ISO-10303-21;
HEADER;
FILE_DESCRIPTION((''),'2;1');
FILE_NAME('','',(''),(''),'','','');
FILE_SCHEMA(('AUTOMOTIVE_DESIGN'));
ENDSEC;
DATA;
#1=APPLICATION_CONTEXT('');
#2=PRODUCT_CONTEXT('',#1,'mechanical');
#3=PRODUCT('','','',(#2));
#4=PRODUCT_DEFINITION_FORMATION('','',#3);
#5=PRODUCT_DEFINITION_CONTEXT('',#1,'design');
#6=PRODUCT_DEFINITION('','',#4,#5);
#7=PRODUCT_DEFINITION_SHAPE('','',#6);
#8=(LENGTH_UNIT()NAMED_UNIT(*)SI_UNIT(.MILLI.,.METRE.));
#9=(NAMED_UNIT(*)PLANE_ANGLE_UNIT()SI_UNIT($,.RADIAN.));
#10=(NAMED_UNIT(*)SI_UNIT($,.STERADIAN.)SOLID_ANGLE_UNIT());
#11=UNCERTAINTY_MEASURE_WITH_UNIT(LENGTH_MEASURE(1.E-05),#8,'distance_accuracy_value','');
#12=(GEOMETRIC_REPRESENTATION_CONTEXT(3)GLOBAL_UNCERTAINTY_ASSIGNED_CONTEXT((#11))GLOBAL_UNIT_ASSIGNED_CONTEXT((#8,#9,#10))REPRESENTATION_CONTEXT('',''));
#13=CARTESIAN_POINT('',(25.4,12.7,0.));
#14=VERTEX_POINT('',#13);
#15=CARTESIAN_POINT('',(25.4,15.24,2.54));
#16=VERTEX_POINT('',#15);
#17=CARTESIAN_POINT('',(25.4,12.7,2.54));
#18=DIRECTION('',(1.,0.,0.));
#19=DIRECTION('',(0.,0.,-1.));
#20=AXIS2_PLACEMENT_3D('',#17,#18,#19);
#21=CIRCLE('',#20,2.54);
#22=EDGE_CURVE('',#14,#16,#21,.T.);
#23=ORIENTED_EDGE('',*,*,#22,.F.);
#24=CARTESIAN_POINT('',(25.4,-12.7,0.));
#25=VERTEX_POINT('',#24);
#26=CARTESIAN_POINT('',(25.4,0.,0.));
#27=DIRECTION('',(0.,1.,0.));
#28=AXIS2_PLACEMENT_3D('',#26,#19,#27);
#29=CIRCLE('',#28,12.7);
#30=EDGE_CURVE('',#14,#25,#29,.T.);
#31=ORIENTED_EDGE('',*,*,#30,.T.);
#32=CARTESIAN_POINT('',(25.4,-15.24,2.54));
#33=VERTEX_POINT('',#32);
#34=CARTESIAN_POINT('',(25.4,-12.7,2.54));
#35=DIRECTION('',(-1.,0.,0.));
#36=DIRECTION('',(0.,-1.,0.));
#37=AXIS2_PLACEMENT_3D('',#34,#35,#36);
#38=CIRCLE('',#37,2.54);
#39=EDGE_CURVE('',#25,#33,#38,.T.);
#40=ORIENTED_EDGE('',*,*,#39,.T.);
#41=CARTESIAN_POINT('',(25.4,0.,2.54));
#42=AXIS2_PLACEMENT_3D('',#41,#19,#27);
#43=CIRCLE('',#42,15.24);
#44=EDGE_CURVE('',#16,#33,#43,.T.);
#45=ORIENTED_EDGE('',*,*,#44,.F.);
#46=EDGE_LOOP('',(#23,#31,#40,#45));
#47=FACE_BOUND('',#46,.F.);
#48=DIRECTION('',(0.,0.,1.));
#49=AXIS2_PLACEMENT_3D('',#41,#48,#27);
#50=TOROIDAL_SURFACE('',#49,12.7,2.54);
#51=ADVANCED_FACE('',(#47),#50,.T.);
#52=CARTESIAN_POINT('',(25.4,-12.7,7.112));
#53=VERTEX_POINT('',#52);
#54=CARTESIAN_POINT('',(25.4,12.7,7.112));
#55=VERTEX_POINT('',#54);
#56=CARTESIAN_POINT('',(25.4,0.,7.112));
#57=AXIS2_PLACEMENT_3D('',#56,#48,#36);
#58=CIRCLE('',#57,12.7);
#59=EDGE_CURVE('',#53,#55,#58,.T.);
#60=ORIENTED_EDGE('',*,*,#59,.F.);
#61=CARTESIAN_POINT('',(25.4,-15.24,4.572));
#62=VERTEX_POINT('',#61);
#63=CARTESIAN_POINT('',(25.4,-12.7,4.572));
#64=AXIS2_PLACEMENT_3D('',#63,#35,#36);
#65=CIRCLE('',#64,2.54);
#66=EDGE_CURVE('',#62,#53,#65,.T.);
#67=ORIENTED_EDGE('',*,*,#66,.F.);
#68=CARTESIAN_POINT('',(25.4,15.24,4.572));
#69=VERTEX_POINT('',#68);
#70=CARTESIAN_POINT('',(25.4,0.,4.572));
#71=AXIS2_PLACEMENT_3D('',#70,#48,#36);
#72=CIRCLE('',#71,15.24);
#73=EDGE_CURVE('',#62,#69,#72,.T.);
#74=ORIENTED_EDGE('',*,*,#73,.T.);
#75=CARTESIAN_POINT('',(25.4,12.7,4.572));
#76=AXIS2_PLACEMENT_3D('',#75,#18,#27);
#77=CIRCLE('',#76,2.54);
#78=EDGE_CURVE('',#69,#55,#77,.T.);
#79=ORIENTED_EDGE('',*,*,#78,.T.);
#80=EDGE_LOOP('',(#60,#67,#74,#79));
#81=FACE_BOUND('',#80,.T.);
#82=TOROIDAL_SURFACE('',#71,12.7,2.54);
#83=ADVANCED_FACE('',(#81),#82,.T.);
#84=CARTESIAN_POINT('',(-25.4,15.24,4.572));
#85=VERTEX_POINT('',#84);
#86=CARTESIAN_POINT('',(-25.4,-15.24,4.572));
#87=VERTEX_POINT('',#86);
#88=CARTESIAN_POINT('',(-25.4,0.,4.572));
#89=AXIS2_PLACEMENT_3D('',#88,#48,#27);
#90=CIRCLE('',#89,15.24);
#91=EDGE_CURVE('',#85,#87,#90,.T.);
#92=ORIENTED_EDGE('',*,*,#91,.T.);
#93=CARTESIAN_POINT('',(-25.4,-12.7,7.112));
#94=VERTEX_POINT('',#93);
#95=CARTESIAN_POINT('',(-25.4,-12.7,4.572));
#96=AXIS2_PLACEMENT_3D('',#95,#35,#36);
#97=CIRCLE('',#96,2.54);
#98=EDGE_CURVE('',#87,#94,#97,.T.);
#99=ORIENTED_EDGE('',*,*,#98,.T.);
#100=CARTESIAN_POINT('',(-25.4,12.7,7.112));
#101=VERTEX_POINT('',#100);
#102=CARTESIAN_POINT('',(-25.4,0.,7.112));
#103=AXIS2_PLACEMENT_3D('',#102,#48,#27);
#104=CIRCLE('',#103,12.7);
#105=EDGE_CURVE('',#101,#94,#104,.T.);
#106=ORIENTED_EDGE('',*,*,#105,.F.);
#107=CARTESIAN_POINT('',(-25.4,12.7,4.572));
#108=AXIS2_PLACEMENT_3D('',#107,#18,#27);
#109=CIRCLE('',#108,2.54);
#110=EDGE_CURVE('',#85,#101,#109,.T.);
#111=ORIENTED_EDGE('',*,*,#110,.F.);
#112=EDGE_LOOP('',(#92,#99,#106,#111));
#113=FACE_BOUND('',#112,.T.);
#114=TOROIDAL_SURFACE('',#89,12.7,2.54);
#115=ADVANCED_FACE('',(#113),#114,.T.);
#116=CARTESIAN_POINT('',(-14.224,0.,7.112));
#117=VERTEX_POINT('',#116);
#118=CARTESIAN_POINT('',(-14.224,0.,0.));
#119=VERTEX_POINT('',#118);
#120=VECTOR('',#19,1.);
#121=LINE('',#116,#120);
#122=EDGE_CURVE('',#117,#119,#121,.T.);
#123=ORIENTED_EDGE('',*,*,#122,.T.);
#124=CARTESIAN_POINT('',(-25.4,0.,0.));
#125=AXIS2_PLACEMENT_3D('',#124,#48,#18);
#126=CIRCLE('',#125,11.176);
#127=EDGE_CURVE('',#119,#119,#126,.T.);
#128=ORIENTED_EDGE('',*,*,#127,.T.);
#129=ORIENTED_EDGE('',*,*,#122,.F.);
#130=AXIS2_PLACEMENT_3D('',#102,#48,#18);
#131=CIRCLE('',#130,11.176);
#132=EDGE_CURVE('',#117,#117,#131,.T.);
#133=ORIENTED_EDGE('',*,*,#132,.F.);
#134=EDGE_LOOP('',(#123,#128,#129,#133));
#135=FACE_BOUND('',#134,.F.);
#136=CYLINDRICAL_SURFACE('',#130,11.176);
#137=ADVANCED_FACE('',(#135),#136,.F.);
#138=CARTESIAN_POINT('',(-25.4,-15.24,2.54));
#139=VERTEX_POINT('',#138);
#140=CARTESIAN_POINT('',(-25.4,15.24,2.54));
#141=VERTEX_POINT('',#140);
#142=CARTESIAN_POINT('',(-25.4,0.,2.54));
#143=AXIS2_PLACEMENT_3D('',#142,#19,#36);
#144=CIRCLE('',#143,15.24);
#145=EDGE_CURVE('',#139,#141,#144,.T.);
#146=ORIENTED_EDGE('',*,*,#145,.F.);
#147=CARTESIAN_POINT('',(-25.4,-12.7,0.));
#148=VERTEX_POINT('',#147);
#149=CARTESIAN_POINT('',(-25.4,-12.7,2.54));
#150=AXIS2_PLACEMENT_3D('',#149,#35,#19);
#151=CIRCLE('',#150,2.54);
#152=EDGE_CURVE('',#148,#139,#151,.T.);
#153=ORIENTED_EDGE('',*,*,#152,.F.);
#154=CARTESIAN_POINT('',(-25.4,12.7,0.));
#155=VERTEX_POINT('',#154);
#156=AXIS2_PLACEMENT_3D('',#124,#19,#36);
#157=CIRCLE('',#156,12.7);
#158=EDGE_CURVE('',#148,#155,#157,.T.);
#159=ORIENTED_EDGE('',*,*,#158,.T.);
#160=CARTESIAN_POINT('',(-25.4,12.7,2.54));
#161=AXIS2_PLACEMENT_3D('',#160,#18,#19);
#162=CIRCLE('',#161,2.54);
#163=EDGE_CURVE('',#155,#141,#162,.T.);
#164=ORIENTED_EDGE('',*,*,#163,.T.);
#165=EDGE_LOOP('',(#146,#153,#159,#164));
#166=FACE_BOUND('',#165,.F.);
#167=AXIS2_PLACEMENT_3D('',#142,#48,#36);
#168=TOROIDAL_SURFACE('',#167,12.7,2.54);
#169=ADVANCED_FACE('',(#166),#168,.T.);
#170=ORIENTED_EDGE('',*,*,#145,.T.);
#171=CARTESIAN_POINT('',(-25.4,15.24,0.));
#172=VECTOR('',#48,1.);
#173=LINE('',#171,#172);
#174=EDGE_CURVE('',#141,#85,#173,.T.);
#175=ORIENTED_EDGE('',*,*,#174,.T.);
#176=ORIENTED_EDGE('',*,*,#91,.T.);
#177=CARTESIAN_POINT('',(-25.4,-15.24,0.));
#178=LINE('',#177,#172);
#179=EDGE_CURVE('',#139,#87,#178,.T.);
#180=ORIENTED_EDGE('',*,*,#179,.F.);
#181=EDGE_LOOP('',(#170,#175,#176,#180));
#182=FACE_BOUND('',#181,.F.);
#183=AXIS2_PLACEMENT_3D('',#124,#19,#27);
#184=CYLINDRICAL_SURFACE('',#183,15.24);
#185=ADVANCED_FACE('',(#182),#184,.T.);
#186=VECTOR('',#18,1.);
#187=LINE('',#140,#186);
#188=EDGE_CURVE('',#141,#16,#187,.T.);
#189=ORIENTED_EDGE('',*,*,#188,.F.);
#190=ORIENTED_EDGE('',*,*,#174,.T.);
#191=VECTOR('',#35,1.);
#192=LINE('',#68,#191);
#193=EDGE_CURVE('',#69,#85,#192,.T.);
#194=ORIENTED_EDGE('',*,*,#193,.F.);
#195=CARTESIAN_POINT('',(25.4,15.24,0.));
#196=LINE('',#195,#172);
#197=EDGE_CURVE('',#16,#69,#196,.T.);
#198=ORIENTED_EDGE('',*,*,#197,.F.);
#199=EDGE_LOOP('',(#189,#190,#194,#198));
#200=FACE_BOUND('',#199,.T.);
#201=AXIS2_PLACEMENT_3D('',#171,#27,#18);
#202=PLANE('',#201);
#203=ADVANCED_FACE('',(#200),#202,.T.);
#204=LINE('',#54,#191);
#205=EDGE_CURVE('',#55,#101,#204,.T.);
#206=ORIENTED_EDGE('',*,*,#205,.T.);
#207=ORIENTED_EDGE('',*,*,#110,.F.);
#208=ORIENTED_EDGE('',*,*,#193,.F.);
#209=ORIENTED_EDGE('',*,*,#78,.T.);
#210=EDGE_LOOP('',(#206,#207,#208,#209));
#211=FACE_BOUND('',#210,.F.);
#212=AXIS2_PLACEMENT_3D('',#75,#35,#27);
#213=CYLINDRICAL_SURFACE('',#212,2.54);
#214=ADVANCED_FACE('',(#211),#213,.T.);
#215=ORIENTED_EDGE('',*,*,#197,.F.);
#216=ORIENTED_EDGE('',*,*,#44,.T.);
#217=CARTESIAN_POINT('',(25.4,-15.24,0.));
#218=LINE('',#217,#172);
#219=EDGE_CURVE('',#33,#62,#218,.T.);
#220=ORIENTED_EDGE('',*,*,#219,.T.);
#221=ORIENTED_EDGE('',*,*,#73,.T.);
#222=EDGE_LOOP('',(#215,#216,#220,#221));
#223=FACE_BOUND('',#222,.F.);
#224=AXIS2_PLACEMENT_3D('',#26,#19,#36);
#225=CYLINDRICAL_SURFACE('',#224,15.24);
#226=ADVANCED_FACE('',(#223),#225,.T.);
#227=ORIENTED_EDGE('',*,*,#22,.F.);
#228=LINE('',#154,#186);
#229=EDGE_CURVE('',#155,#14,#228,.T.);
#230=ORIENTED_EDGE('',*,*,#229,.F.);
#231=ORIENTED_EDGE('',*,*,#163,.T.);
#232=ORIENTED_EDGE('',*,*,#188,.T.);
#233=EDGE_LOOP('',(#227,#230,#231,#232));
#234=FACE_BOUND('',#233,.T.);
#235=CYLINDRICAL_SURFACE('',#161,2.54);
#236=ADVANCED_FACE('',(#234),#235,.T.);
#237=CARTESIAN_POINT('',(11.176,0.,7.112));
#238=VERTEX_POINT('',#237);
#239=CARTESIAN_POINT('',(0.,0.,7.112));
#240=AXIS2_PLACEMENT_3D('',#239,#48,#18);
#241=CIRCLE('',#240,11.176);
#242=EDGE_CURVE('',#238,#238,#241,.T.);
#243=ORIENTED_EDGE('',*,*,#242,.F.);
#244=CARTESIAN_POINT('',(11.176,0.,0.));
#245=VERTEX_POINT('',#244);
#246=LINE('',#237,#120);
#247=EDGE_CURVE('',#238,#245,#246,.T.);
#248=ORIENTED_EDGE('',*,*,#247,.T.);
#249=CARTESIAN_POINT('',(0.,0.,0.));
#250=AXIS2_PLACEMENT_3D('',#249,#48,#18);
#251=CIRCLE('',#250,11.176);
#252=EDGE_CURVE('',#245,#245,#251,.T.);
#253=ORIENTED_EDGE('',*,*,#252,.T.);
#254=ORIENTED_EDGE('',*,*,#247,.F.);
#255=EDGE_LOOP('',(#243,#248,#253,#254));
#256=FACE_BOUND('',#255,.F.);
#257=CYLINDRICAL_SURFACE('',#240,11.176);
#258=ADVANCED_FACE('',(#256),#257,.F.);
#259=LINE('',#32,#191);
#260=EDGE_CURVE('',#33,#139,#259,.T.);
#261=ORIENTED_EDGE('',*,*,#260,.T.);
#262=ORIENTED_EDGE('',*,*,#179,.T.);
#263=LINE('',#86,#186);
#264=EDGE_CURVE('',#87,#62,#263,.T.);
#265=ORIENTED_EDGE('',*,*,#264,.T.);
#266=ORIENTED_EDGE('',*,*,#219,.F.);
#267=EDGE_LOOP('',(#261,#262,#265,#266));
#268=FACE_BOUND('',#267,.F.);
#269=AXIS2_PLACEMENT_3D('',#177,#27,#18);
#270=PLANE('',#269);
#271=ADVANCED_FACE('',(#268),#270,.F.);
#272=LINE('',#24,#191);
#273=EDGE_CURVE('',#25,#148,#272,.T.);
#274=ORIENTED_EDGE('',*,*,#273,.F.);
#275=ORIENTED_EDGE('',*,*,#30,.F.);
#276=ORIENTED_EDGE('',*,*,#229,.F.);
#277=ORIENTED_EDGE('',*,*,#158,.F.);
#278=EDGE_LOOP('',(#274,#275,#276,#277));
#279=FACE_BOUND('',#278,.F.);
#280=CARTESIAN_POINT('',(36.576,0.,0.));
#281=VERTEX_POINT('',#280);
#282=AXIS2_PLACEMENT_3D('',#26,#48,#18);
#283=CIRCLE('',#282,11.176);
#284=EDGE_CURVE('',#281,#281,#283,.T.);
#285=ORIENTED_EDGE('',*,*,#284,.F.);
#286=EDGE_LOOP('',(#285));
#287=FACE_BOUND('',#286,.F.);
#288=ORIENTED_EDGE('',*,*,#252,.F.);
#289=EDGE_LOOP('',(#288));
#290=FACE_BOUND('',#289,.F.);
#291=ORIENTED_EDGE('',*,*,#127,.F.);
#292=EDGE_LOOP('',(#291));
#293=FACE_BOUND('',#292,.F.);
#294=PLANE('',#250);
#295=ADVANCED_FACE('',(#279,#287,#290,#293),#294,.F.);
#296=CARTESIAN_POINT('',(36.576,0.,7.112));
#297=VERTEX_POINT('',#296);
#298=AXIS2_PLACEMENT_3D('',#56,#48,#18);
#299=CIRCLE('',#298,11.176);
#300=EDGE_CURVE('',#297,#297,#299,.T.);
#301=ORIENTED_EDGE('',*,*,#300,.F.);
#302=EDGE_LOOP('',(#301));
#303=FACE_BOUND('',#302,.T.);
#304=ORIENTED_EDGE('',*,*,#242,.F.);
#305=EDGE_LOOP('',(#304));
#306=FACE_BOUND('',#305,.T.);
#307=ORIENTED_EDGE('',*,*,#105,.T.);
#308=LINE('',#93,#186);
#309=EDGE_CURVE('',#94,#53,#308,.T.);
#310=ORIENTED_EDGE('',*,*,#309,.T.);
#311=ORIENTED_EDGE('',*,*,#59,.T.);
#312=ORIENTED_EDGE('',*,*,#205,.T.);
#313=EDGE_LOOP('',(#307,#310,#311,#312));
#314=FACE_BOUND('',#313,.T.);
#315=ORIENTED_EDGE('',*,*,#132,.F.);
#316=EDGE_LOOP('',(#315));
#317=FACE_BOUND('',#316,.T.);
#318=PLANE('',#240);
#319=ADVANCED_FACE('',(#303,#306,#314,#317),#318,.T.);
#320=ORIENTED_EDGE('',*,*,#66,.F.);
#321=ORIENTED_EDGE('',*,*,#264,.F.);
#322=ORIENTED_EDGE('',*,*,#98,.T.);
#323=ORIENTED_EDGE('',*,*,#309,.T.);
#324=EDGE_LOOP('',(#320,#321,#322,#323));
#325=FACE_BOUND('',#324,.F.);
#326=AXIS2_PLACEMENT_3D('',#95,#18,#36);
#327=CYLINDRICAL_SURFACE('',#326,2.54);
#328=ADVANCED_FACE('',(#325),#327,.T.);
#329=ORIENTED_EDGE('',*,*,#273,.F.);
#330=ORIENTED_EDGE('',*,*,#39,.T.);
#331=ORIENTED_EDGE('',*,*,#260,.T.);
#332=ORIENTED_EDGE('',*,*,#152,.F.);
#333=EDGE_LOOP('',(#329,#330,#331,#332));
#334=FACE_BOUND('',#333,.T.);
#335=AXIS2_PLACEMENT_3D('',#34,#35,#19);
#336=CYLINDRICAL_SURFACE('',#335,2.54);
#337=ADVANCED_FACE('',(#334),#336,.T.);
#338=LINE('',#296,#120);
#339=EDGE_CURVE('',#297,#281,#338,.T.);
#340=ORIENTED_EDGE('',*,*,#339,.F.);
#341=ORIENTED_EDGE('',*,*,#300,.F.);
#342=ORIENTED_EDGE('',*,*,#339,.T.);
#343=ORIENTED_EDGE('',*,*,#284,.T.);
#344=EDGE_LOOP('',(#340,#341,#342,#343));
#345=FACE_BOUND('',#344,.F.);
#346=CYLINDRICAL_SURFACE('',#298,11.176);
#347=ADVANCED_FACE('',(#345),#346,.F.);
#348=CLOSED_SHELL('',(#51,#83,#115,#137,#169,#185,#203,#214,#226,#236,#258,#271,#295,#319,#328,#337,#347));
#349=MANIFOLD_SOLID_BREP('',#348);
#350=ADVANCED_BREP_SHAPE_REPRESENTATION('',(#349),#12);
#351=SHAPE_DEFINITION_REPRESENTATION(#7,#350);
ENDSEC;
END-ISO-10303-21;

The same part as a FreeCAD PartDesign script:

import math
import FreeCAD as App
import Part
import Sketcher
from FreeCAD import Vector
Q = App.Units.Quantity


def edges_at(feature, points):
    """Names of the edges that pass closest to the given points."""
    edges = feature.Shape.Edges
    near = lambda p: min(range(len(edges)), key=lambda i: edges[i].distToShape(Part.Vertex(*p))[0])
    return sorted({f"Edge{near(p) + 1}" for p in points})

doc = App.newDocument("Part")
params = doc.addObject("Spreadsheet::Sheet", "Params")
for row, (alias, value) in enumerate([
    ("sketch1_radius", "0.6 in"),
    ("sketch1_width", "2 in"),
    ("pad1_length", "0.28 in"),
    ("sketch2_diameter", "0.88 in"),
    ("pocket1_length", "1 in"),
    ("fillet_radius", "0.1 in"),
], start=1):
    params.set(f"A{row}", alias)
    params.set(f"B{row}", "=" + value)
    params.setAlias(f"B{row}", alias)

body = doc.addObject("PartDesign::Body", "Body")

# Sketch on XY plane
sketch1 = doc.addObject("Sketcher::SketchObject", "Sketch")
body.addObject(sketch1)
sketch1.AttachmentSupport = (doc.XY_Plane, [""])
sketch1.MapMode = "FlatFace"
sketch1.addGeometry([
    Part.LineSegment(Vector(-25.4, -15.24, 0), Vector(25.4, -15.24, 0)),
    Part.ArcOfCircle(Part.Circle(Vector(25.4, 0, 0), Vector(0, 0, 1), 15.24), math.radians(-90), math.radians(90)),
    Part.LineSegment(Vector(25.4, 15.24, 0), Vector(-25.4, 15.24, 0)),
    Part.ArcOfCircle(Part.Circle(Vector(-25.4, 0, 0), Vector(0, 0, 1), 15.24), math.radians(90), math.radians(270)),
], False)
sketch1.addConstraint([
    Sketcher.Constraint("Tangent", 0, 2, 1, 1),
    Sketcher.Constraint("Tangent", 1, 2, 2, 1),
    Sketcher.Constraint("Tangent", 2, 2, 3, 1),
    Sketcher.Constraint("Tangent", 3, 2, 0, 1),
    Sketcher.Constraint("Horizontal", 0),
    Sketcher.Constraint("Horizontal", 2),
    Sketcher.Constraint("Symmetric", 1, 3, 3, 3, -1, 1),
    Sketcher.Constraint("Radius", 1, Q("0.6 in")),
    Sketcher.Constraint("DistanceX", 0, 1, 0, 2, Q("2 in")),
])
sketch1.setExpression("Constraints[7]", "Params.sketch1_radius")
sketch1.setExpression("Constraints[8]", "Params.sketch1_width")
pad1 = doc.addObject("PartDesign::Pad", "Pad")
body.addObject(pad1)
pad1.Profile = sketch1
pad1.setExpression("Length", "Params.pad1_length")

# Sketch on XY plane
sketch2 = doc.addObject("Sketcher::SketchObject", "Sketch001")
body.addObject(sketch2)
sketch2.AttachmentSupport = (doc.XY_Plane, [""])
sketch2.MapMode = "FlatFace"
sketch2.AttachmentOffset = App.Placement(Vector(0, 0, 0.28 * 25.4), App.Rotation())
sketch2.addGeometry([
    Part.Circle(Vector(0, 0, 0), Vector(0, 0, 1), 11.176),
    Part.Circle(Vector(-25.4, 0, 0), Vector(0, 0, 1), 11.176),
    Part.Circle(Vector(25.4, 0, 0), Vector(0, 0, 1), 11.176),
], False)
sketch2.addConstraint([
    Sketcher.Constraint("Coincident", 0, 3, -1, 1),
    Sketcher.Constraint("Equal", 0, 1),
    Sketcher.Constraint("Equal", 1, 2),
    Sketcher.Constraint("Symmetric", 1, 3, 2, 3, -1, 1),
    Sketcher.Constraint("PointOnObject", 1, 3, -1),
    Sketcher.Constraint("Diameter", 0, Q("0.88 in")),
    Sketcher.Constraint("DistanceX", 1, 3, -1, 1, Q("1 in")),
])
sketch2.setExpression("Constraints[5]", "Params.sketch2_diameter")
pocket1 = doc.addObject("PartDesign::Pocket", "Pocket")
body.addObject(pocket1)
pocket1.Profile = sketch2
pocket1.setExpression("Length", "Params.pocket1_length")
doc.recompute()

fillet = doc.addObject("PartDesign::Fillet", "Fillet")
body.addObject(fillet)
fillet.Base = (pocket1, edges_at(pocket1, [
    (0, 15.24, 0),
    (-40.64, 0, 0),
    (0, -15.24, 0),
    (40.64, 0, 0),
    (40.64, 0, 7.112),
    (0, 15.24, 7.112),
    (-40.64, 0, 7.112),
    (0, -15.24, 7.112),
]))
fillet.setExpression("Radius", "Params.fillet_radius")

doc.recompute()
